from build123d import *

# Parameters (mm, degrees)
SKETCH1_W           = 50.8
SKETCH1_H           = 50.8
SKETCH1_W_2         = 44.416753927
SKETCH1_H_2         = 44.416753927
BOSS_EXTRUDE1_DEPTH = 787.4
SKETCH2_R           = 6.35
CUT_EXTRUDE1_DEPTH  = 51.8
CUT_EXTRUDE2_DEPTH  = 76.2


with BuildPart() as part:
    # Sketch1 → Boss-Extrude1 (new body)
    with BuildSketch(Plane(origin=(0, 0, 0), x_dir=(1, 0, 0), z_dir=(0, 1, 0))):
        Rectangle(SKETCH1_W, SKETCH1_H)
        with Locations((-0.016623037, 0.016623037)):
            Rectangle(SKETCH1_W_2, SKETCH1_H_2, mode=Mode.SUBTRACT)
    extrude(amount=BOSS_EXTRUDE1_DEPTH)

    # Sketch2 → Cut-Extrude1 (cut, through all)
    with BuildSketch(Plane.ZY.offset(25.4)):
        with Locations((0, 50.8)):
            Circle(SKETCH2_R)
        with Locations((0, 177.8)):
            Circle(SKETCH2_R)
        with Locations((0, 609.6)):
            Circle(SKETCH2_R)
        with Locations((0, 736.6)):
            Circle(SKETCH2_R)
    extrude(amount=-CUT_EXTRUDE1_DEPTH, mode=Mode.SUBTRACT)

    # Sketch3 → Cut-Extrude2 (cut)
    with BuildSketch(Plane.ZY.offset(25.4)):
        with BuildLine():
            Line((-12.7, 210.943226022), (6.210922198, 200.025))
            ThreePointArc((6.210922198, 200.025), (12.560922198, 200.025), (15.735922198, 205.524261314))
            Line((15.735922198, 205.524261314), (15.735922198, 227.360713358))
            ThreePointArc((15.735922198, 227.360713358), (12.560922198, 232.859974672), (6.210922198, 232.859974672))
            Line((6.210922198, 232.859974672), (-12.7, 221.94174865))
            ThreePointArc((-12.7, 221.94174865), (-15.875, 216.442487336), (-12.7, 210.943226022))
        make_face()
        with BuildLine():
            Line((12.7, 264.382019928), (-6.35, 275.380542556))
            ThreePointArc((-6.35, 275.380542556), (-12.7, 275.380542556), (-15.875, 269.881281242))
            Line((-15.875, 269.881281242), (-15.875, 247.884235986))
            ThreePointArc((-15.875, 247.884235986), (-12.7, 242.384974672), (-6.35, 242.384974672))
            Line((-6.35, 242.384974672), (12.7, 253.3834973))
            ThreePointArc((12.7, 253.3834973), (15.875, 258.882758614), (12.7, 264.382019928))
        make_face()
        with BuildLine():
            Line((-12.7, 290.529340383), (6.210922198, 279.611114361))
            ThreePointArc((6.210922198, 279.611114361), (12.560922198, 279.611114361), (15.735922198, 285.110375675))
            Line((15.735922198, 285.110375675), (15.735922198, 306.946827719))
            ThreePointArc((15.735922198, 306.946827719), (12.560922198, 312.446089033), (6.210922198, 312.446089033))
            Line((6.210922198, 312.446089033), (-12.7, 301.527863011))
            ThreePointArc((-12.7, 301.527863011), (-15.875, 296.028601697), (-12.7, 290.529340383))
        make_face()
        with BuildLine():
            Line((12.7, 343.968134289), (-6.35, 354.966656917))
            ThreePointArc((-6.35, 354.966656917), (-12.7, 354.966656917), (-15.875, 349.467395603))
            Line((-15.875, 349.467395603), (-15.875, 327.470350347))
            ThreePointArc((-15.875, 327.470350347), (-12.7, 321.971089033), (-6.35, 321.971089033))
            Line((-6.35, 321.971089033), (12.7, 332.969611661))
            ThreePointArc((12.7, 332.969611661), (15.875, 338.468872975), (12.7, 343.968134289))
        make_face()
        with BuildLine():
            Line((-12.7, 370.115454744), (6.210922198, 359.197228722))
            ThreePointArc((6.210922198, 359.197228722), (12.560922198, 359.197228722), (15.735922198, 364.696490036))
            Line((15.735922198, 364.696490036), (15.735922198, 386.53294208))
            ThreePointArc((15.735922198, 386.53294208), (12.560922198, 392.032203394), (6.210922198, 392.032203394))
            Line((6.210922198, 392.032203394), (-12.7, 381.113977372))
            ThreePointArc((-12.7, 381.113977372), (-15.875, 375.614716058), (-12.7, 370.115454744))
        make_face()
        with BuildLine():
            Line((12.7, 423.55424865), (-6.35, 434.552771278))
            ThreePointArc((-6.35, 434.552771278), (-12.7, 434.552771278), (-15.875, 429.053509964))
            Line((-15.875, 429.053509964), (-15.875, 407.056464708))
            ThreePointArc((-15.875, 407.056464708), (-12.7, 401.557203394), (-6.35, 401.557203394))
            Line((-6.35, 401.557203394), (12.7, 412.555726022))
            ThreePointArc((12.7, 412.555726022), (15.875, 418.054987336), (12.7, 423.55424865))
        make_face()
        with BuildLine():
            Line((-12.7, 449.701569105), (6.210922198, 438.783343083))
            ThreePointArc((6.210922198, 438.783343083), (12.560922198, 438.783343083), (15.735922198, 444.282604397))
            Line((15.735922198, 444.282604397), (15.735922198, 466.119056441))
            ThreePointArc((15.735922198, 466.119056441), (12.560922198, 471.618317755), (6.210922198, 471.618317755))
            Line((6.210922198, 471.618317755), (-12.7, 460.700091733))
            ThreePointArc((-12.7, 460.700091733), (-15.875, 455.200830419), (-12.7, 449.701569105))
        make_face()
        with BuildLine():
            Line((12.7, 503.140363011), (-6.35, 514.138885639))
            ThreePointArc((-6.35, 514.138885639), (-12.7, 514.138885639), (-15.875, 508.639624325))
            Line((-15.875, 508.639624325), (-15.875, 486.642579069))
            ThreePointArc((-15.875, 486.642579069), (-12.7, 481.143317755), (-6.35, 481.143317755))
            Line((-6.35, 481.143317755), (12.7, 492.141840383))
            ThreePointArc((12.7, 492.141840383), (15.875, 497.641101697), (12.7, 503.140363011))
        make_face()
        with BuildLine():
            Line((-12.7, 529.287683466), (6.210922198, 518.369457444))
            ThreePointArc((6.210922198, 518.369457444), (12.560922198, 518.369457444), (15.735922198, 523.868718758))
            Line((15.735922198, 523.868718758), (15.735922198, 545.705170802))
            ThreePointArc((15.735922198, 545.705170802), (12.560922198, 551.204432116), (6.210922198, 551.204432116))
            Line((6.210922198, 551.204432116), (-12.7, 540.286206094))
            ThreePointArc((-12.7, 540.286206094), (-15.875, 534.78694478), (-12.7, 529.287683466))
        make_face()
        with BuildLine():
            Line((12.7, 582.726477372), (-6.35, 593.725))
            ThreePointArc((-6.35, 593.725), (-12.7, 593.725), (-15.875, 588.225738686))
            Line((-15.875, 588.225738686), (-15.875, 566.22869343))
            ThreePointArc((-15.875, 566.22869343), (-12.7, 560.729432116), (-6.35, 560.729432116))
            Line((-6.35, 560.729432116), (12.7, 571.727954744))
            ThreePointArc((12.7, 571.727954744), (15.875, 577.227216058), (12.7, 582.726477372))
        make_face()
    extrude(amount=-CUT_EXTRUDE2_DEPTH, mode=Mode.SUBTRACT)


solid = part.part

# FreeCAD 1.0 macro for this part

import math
import FreeCAD as App
import Part
import Sketcher

V = App.Vector
Q = App.Units.Quantity

doc = App.newDocument("Part")
body = doc.addObject("PartDesign::Body", "Body")

sketch1 = body.newObject("Sketcher::SketchObject", "Sketch")
sketch1.AttachmentSupport = (doc.getObject("XZ_Plane"), [""])
sketch1.MapMode = "FlatFace"
sketch1.addGeometry(Part.LineSegment(V(-25, -25, 0), V(-25, 25, 0)), False)
sketch1.addGeometry(Part.LineSegment(V(-25, 25, 0), V(25, 25, 0)), False)
sketch1.addGeometry(Part.LineSegment(V(25, 25, 0), V(25, -25, 0)), False)
sketch1.addGeometry(Part.LineSegment(V(25, -25, 0), V(-25, -25, 0)), False)
sketch1.addGeometry(Part.LineSegment(V(22, 22, 0), V(-22, 22, 0)), False)
sketch1.addGeometry(Part.LineSegment(V(-22, 22, 0), V(-22, -22, 0)), False)
sketch1.addGeometry(Part.LineSegment(V(-22, -22, 0), V(22, -22, 0)), False)
sketch1.addGeometry(Part.LineSegment(V(22, -22, 0), V(22, 22, 0)), False)
sketch1.addConstraint(Sketcher.Constraint("Coincident", 0, 2, 1, 1))
sketch1.addConstraint(Sketcher.Constraint("Coincident", 1, 2, 2, 1))
sketch1.addConstraint(Sketcher.Constraint("Coincident", 2, 2, 3, 1))
sketch1.addConstraint(Sketcher.Constraint("Coincident", 3, 2, 0, 1))
sketch1.addConstraint(Sketcher.Constraint("Coincident", 4, 2, 5, 1))
sketch1.addConstraint(Sketcher.Constraint("Coincident", 5, 2, 6, 1))
sketch1.addConstraint(Sketcher.Constraint("Coincident", 6, 2, 7, 1))
sketch1.addConstraint(Sketcher.Constraint("Coincident", 7, 2, 4, 1))
sketch1.addConstraint(Sketcher.Constraint("Vertical", 0))
sketch1.addConstraint(Sketcher.Constraint("Horizontal", 1))
sketch1.addConstraint(Sketcher.Constraint("Vertical", 2))
sketch1.addConstraint(Sketcher.Constraint("Horizontal", 3))
sketch1.addConstraint(Sketcher.Constraint("Horizontal", 4))
sketch1.addConstraint(Sketcher.Constraint("Vertical", 5))
sketch1.addConstraint(Sketcher.Constraint("Horizontal", 6))
sketch1.addConstraint(Sketcher.Constraint("Vertical", 7))
sketch1.addConstraint(Sketcher.Constraint("Symmetric", 0, 2, 2, 2, -1, 1))
sketch1.addConstraint(Sketcher.Constraint("Equal", 3, 0))
sketch1.addConstraint(Sketcher.Constraint("Equal", 6, 5))
sketch1.addConstraint(Sketcher.Constraint("DistanceX", 1, 1, 1, 2, Q("2 in")))
sketch1.addConstraint(Sketcher.Constraint("DistanceX", 4, 2, -1, 1, Q("0.875 in")))
sketch1.addConstraint(Sketcher.Constraint("DistanceY", 5, 2, -1, 1, Q("0.875 in")))
sketch1.addConstraint(Sketcher.Constraint("DistanceX", 4, 2, 4, 1, 44.416754))
pad1 = body.newObject("PartDesign::Pad", "Pad")
pad1.Profile = sketch1
pad1.Length = Q("31 in")
pad1.Reversed = True

sketch2 = body.newObject("Sketcher::SketchObject", "Sketch001")
sketch2.AttachmentSupport = (doc.getObject("YZ_Plane"), [""])
sketch2.MapMode = "FlatFace"
sketch2.AttachmentOffset = App.Placement(V(0, 0, -1 * 25.4), App.Rotation())
sketch2.addGeometry(Part.Circle(V(51, 0, 0), V(0, 0, 1), 6), False)
sketch2.addGeometry(Part.Circle(V(178, 0, 0), V(0, 0, 1), 6), False)
sketch2.addGeometry(Part.Circle(V(610, 0, 0), V(0, 0, 1), 6), False)
sketch2.addGeometry(Part.Circle(V(737, 0, 0), V(0, 0, 1), 6), False)
sketch2.addConstraint(Sketcher.Constraint("Equal", 0, 1))
sketch2.addConstraint(Sketcher.Constraint("Equal", 1, 2))
sketch2.addConstraint(Sketcher.Constraint("Equal", 2, 3))
sketch2.addConstraint(Sketcher.Constraint("PointOnObject", 0, 3, -1))
sketch2.addConstraint(Sketcher.Constraint("PointOnObject", 1, 3, -1))
sketch2.addConstraint(Sketcher.Constraint("PointOnObject", 2, 3, -1))
sketch2.addConstraint(Sketcher.Constraint("PointOnObject", 3, 3, -1))
sketch2.addConstraint(Sketcher.Constraint("Diameter", 0, Q("0.5 in")))
sketch2.addConstraint(Sketcher.Constraint("DistanceX", -1, 1, 0, 3, Q("2 in")))
sketch2.addConstraint(Sketcher.Constraint("DistanceX", -1, 1, 1, 3, Q("7 in")))
sketch2.addConstraint(Sketcher.Constraint("DistanceX", -1, 1, 2, 3, Q("24 in")))
sketch2.addConstraint(Sketcher.Constraint("DistanceX", -1, 1, 3, 3, Q("29 in")))
pocket1 = body.newObject("PartDesign::Pocket", "Pocket")
pocket1.Profile = sketch2
pocket1.Type = "ThroughAll"
pocket1.Reversed = True

sketch3 = body.newObject("Sketcher::SketchObject", "Sketch002")
sketch3.AttachmentSupport = (doc.getObject("YZ_Plane"), [""])
sketch3.MapMode = "FlatFace"
sketch3.AttachmentOffset = App.Placement(V(0, 0, -1 * 25.4), App.Rotation())
sketch3.addGeometry(Part.LineSegment(V(211, -13, 0), V(200, 6, 0)), False)
sketch3.addGeometry(Part.ArcOfCircle(Part.Circle(V(206, 9, 0), V(0, 0, 1), 6), math.radians(90), math.radians(210)), False)
sketch3.addGeometry(Part.LineSegment(V(206, 16, 0), V(227, 16, 0)), False)
sketch3.addGeometry(Part.ArcOfCircle(Part.Circle(V(227, 9, 0), V(0, 0, 1), 6), math.radians(-30), math.radians(90)), False)
sketch3.addGeometry(Part.LineSegment(V(233, 6, 0), V(222, -13, 0)), False)
sketch3.addGeometry(Part.ArcOfCircle(Part.Circle(V(216, -10, 0), V(0, 0, 1), 6), math.radians(-150), math.radians(-30)), False)
sketch3.addGeometry(Part.LineSegment(V(264, 13, 0), V(275, -6, 0)), False)
sketch3.addGeometry(Part.ArcOfCircle(Part.Circle(V(270, -10, 0), V(0, 0, 1), 6), math.radians(-90), math.radians(30)), False)
sketch3.addGeometry(Part.LineSegment(V(270, -16, 0), V(248, -16, 0)), False)
sketch3.addGeometry(Part.ArcOfCircle(Part.Circle(V(248, -10, 0), V(0, 0, 1), 6), math.radians(150), math.radians(270)), False)
sketch3.addGeometry(Part.LineSegment(V(242, -6, 0), V(253, 13, 0)), False)
sketch3.addGeometry(Part.ArcOfCircle(Part.Circle(V(259, 10, 0), V(0, 0, 1), 6), math.radians(30), math.radians(150)), False)
sketch3.addGeometry(Part.LineSegment(V(291, -13, 0), V(280, 6, 0)), False)
sketch3.addGeometry(Part.ArcOfCircle(Part.Circle(V(285, 9, 0), V(0, 0, 1), 6), math.radians(90), math.radians(210)), False)
sketch3.addGeometry(Part.LineSegment(V(285, 16, 0), V(307, 16, 0)), False)
sketch3.addGeometry(Part.ArcOfCircle(Part.Circle(V(307, 9, 0), V(0, 0, 1), 6), math.radians(-30), math.radians(90)), False)
sketch3.addGeometry(Part.LineSegment(V(312, 6, 0), V(302, -13, 0)), False)
sketch3.addGeometry(Part.ArcOfCircle(Part.Circle(V(296, -10, 0), V(0, 0, 1), 6), math.radians(-150), math.radians(-30)), False)
sketch3.addGeometry(Part.LineSegment(V(344, 13, 0), V(355, -6, 0)), False)
sketch3.addGeometry(Part.ArcOfCircle(Part.Circle(V(349, -10, 0), V(0, 0, 1), 6), math.radians(-90), math.radians(30)), False)
sketch3.addGeometry(Part.LineSegment(V(349, -16, 0), V(327, -16, 0)), False)
sketch3.addGeometry(Part.ArcOfCircle(Part.Circle(V(327, -10, 0), V(0, 0, 1), 6), math.radians(150), math.radians(270)), False)
sketch3.addGeometry(Part.LineSegment(V(322, -6, 0), V(333, 13, 0)), False)
sketch3.addGeometry(Part.ArcOfCircle(Part.Circle(V(338, 10, 0), V(0, 0, 1), 6), math.radians(30), math.radians(150)), False)
sketch3.addGeometry(Part.LineSegment(V(370, -13, 0), V(359, 6, 0)), False)
sketch3.addGeometry(Part.ArcOfCircle(Part.Circle(V(365, 9, 0), V(0, 0, 1), 6), math.radians(90), math.radians(210)), False)
sketch3.addGeometry(Part.LineSegment(V(365, 16, 0), V(387, 16, 0)), False)
sketch3.addGeometry(Part.ArcOfCircle(Part.Circle(V(387, 9, 0), V(0, 0, 1), 6), math.radians(-30), math.radians(90)), False)
sketch3.addGeometry(Part.LineSegment(V(392, 6, 0), V(381, -13, 0)), False)
sketch3.addGeometry(Part.ArcOfCircle(Part.Circle(V(376, -10, 0), V(0, 0, 1), 6), math.radians(-150), math.radians(-30)), False)
sketch3.addGeometry(Part.LineSegment(V(424, 13, 0), V(435, -6, 0)), False)
sketch3.addGeometry(Part.ArcOfCircle(Part.Circle(V(429, -10, 0), V(0, 0, 1), 6), math.radians(-90), math.radians(30)), False)
sketch3.addGeometry(Part.LineSegment(V(429, -16, 0), V(407, -16, 0)), False)
sketch3.addGeometry(Part.ArcOfCircle(Part.Circle(V(407, -10, 0), V(0, 0, 1), 6), math.radians(150), math.radians(270)), False)
sketch3.addGeometry(Part.LineSegment(V(402, -6, 0), V(413, 13, 0)), False)
sketch3.addGeometry(Part.ArcOfCircle(Part.Circle(V(418, 10, 0), V(0, 0, 1), 6), math.radians(30), math.radians(150)), False)
sketch3.addGeometry(Part.LineSegment(V(450, -13, 0), V(439, 6, 0)), False)
sketch3.addGeometry(Part.ArcOfCircle(Part.Circle(V(444, 9, 0), V(0, 0, 1), 6), math.radians(90), math.radians(210)), False)
sketch3.addGeometry(Part.LineSegment(V(444, 16, 0), V(466, 16, 0)), False)
sketch3.addGeometry(Part.ArcOfCircle(Part.Circle(V(466, 9, 0), V(0, 0, 1), 6), math.radians(-30), math.radians(90)), False)
sketch3.addGeometry(Part.LineSegment(V(472, 6, 0), V(461, -13, 0)), False)
sketch3.addGeometry(Part.ArcOfCircle(Part.Circle(V(455, -10, 0), V(0, 0, 1), 6), math.radians(-150), math.radians(-30)), False)
sketch3.addGeometry(Part.LineSegment(V(503, 13, 0), V(514, -6, 0)), False)
sketch3.addGeometry(Part.ArcOfCircle(Part.Circle(V(509, -10, 0), V(0, 0, 1), 6), math.radians(-90), math.radians(30)), False)
sketch3.addGeometry(Part.LineSegment(V(509, -16, 0), V(487, -16, 0)), False)
sketch3.addGeometry(Part.ArcOfCircle(Part.Circle(V(487, -10, 0), V(0, 0, 1), 6), math.radians(150), math.radians(270)), False)
sketch3.addGeometry(Part.LineSegment(V(481, -6, 0), V(492, 13, 0)), False)
sketch3.addGeometry(Part.ArcOfCircle(Part.Circle(V(498, 10, 0), V(0, 0, 1), 6), math.radians(30), math.radians(150)), False)
sketch3.addGeometry(Part.LineSegment(V(529, -13, 0), V(518, 6, 0)), False)
sketch3.addGeometry(Part.ArcOfCircle(Part.Circle(V(524, 9, 0), V(0, 0, 1), 6), math.radians(90), math.radians(210)), False)
sketch3.addGeometry(Part.LineSegment(V(524, 16, 0), V(546, 16, 0)), False)
sketch3.addGeometry(Part.ArcOfCircle(Part.Circle(V(546, 9, 0), V(0, 0, 1), 6), math.radians(-30), math.radians(90)), False)
sketch3.addGeometry(Part.LineSegment(V(551, 6, 0), V(540, -13, 0)), False)
sketch3.addGeometry(Part.ArcOfCircle(Part.Circle(V(535, -10, 0), V(0, 0, 1), 6), math.radians(-150), math.radians(-30)), False)
sketch3.addGeometry(Part.LineSegment(V(583, 13, 0), V(594, -6, 0)), False)
sketch3.addGeometry(Part.ArcOfCircle(Part.Circle(V(588, -10, 0), V(0, 0, 1), 6), math.radians(-90), math.radians(30)), False)
sketch3.addGeometry(Part.LineSegment(V(588, -16, 0), V(566, -16, 0)), False)
sketch3.addGeometry(Part.ArcOfCircle(Part.Circle(V(566, -10, 0), V(0, 0, 1), 6), math.radians(150), math.radians(270)), False)
sketch3.addGeometry(Part.LineSegment(V(561, -6, 0), V(572, 13, 0)), False)
sketch3.addGeometry(Part.ArcOfCircle(Part.Circle(V(577, 10, 0), V(0, 0, 1), 6), math.radians(30), math.radians(150)), False)
sketch3.addConstraint(Sketcher.Constraint("Tangent", 0, 2, 1, 2))
sketch3.addConstraint(Sketcher.Constraint("Tangent", 1, 1, 2, 1))
sketch3.addConstraint(Sketcher.Constraint("Tangent", 2, 2, 3, 2))
sketch3.addConstraint(Sketcher.Constraint("Tangent", 3, 1, 4, 1))
sketch3.addConstraint(Sketcher.Constraint("Tangent", 4, 2, 5, 2))
sketch3.addConstraint(Sketcher.Constraint("Tangent", 5, 1, 0, 1))
sketch3.addConstraint(Sketcher.Constraint("Tangent", 6, 2, 7, 2))
sketch3.addConstraint(Sketcher.Constraint("Tangent", 7, 1, 8, 1))
sketch3.addConstraint(Sketcher.Constraint("Tangent", 8, 2, 9, 2))
sketch3.addConstraint(Sketcher.Constraint("Tangent", 9, 1, 10, 1))
sketch3.addConstraint(Sketcher.Constraint("Tangent", 10, 2, 11, 2))
sketch3.addConstraint(Sketcher.Constraint("Tangent", 11, 1, 6, 1))
sketch3.addConstraint(Sketcher.Constraint("Tangent", 12, 2, 13, 2))
sketch3.addConstraint(Sketcher.Constraint("Tangent", 13, 1, 14, 1))
sketch3.addConstraint(Sketcher.Constraint("Tangent", 14, 2, 15, 2))
sketch3.addConstraint(Sketcher.Constraint("Tangent", 15, 1, 16, 1))
sketch3.addConstraint(Sketcher.Constraint("Tangent", 16, 2, 17, 2))
sketch3.addConstraint(Sketcher.Constraint("Tangent", 17, 1, 12, 1))
sketch3.addConstraint(Sketcher.Constraint("Tangent", 18, 2, 19, 2))
sketch3.addConstraint(Sketcher.Constraint("Tangent", 19, 1, 20, 1))
sketch3.addConstraint(Sketcher.Constraint("Tangent", 20, 2, 21, 2))
sketch3.addConstraint(Sketcher.Constraint("Tangent", 21, 1, 22, 1))
sketch3.addConstraint(Sketcher.Constraint("Tangent", 22, 2, 23, 2))
sketch3.addConstraint(Sketcher.Constraint("Tangent", 23, 1, 18, 1))
sketch3.addConstraint(Sketcher.Constraint("Tangent", 24, 2, 25, 2))
sketch3.addConstraint(Sketcher.Constraint("Tangent", 25, 1, 26, 1))
sketch3.addConstraint(Sketcher.Constraint("Tangent", 26, 2, 27, 2))
sketch3.addConstraint(Sketcher.Constraint("Tangent", 27, 1, 28, 1))
sketch3.addConstraint(Sketcher.Constraint("Tangent", 28, 2, 29, 2))
sketch3.addConstraint(Sketcher.Constraint("Tangent", 29, 1, 24, 1))
sketch3.addConstraint(Sketcher.Constraint("Tangent", 30, 2, 31, 2))
sketch3.addConstraint(Sketcher.Constraint("Tangent", 31, 1, 32, 1))
sketch3.addConstraint(Sketcher.Constraint("Tangent", 32, 2, 33, 2))
sketch3.addConstraint(Sketcher.Constraint("Tangent", 33, 1, 34, 1))
sketch3.addConstraint(Sketcher.Constraint("Tangent", 34, 2, 35, 2))
sketch3.addConstraint(Sketcher.Constraint("Tangent", 35, 1, 30, 1))
sketch3.addConstraint(Sketcher.Constraint("Tangent", 36, 2, 37, 2))
sketch3.addConstraint(Sketcher.Constraint("Tangent", 37, 1, 38, 1))
sketch3.addConstraint(Sketcher.Constraint("Tangent", 38, 2, 39, 2))
sketch3.addConstraint(Sketcher.Constraint("Tangent", 39, 1, 40, 1))
sketch3.addConstraint(Sketcher.Constraint("Tangent", 40, 2, 41, 2))
sketch3.addConstraint(Sketcher.Constraint("Tangent", 41, 1, 36, 1))
sketch3.addConstraint(Sketcher.Constraint("Tangent", 42, 2, 43, 2))
sketch3.addConstraint(Sketcher.Constraint("Tangent", 43, 1, 44, 1))
sketch3.addConstraint(Sketcher.Constraint("Tangent", 44, 2, 45, 2))
sketch3.addConstraint(Sketcher.Constraint("Tangent", 45, 1, 46, 1))
sketch3.addConstraint(Sketcher.Constraint("Tangent", 46, 2, 47, 2))
sketch3.addConstraint(Sketcher.Constraint("Tangent", 47, 1, 42, 1))
sketch3.addConstraint(Sketcher.Constraint("Tangent", 48, 2, 49, 2))
sketch3.addConstraint(Sketcher.Constraint("Tangent", 49, 1, 50, 1))
sketch3.addConstraint(Sketcher.Constraint("Tangent", 50, 2, 51, 2))
sketch3.addConstraint(Sketcher.Constraint("Tangent", 51, 1, 52, 1))
sketch3.addConstraint(Sketcher.Constraint("Tangent", 52, 2, 53, 2))
sketch3.addConstraint(Sketcher.Constraint("Tangent", 53, 1, 48, 1))
sketch3.addConstraint(Sketcher.Constraint("Tangent", 54, 2, 55, 2))
sketch3.addConstraint(Sketcher.Constraint("Tangent", 55, 1, 56, 1))
sketch3.addConstraint(Sketcher.Constraint("Tangent", 56, 2, 57, 2))
sketch3.addConstraint(Sketcher.Constraint("Tangent", 57, 1, 58, 1))
sketch3.addConstraint(Sketcher.Constraint("Tangent", 58, 2, 59, 2))
sketch3.addConstraint(Sketcher.Constraint("Tangent", 59, 1, 54, 1))
sketch3.addConstraint(Sketcher.Constraint("Horizontal", 2))
sketch3.addConstraint(Sketcher.Constraint("Horizontal", 8))
sketch3.addConstraint(Sketcher.Constraint("Horizontal", 14))
sketch3.addConstraint(Sketcher.Constraint("Horizontal", 20))
sketch3.addConstraint(Sketcher.Constraint("Horizontal", 26))
sketch3.addConstraint(Sketcher.Constraint("Horizontal", 32))
sketch3.addConstraint(Sketcher.Constraint("Horizontal", 38))
sketch3.addConstraint(Sketcher.Constraint("Horizontal", 44))
sketch3.addConstraint(Sketcher.Constraint("Horizontal", 50))
sketch3.addConstraint(Sketcher.Constraint("Horizontal", 56))
sketch3.addConstraint(Sketcher.Constraint("Equal", 1, 3))
sketch3.addConstraint(Sketcher.Constraint("Equal", 3, 5))
sketch3.addConstraint(Sketcher.Constraint("Equal", 5, 7))
sketch3.addConstraint(Sketcher.Constraint("Equal", 7, 9))
sketch3.addConstraint(Sketcher.Constraint("Equal", 9, 11))
sketch3.addConstraint(Sketcher.Constraint("Equal", 11, 13))
sketch3.addConstraint(Sketcher.Constraint("Equal", 13, 15))
sketch3.addConstraint(Sketcher.Constraint("Equal", 15, 17))
sketch3.addConstraint(Sketcher.Constraint("Equal", 17, 19))
sketch3.addConstraint(Sketcher.Constraint("Equal", 19, 21))
sketch3.addConstraint(Sketcher.Constraint("Equal", 21, 23))
sketch3.addConstraint(Sketcher.Constraint("Equal", 23, 25))
sketch3.addConstraint(Sketcher.Constraint("Equal", 25, 27))
sketch3.addConstraint(Sketcher.Constraint("Equal", 27, 29))
sketch3.addConstraint(Sketcher.Constraint("Equal", 29, 31))
sketch3.addConstraint(Sketcher.Constraint("Equal", 31, 33))
sketch3.addConstraint(Sketcher.Constraint("Equal", 33, 35))
sketch3.addConstraint(Sketcher.Constraint("Equal", 35, 37))
sketch3.addConstraint(Sketcher.Constraint("Equal", 37, 39))
sketch3.addConstraint(Sketcher.Constraint("Equal", 39, 41))
sketch3.addConstraint(Sketcher.Constraint("Equal", 41, 43))
sketch3.addConstraint(Sketcher.Constraint("Equal", 43, 45))
sketch3.addConstraint(Sketcher.Constraint("Equal", 45, 47))
sketch3.addConstraint(Sketcher.Constraint("Equal", 47, 49))
sketch3.addConstraint(Sketcher.Constraint("Equal", 49, 51))
sketch3.addConstraint(Sketcher.Constraint("Equal", 51, 53))
sketch3.addConstraint(Sketcher.Constraint("Equal", 53, 55))
sketch3.addConstraint(Sketcher.Constraint("Equal", 55, 57))
sketch3.addConstraint(Sketcher.Constraint("Equal", 57, 59))
sketch3.addConstraint(Sketcher.Constraint("Parallel", 0, 6))
sketch3.addConstraint(Sketcher.Constraint("Parallel", 4, 10))
sketch3.addConstraint(Sketcher.Constraint("Parallel", 6, 12))
sketch3.addConstraint(Sketcher.Constraint("Parallel", 10, 16))
sketch3.addConstraint(Sketcher.Constraint("Parallel", 12, 18))
sketch3.addConstraint(Sketcher.Constraint("Parallel", 16, 22))
sketch3.addConstraint(Sketcher.Constraint("Parallel", 18, 24))
sketch3.addConstraint(Sketcher.Constraint("Parallel", 22, 28))
sketch3.addConstraint(Sketcher.Constraint("Parallel", 24, 30))
sketch3.addConstraint(Sketcher.Constraint("Parallel", 28, 34))
sketch3.addConstraint(Sketcher.Constraint("Parallel", 30, 36))
sketch3.addConstraint(Sketcher.Constraint("Parallel", 34, 40))
sketch3.addConstraint(Sketcher.Constraint("Parallel", 36, 42))
sketch3.addConstraint(Sketcher.Constraint("Parallel", 40, 46))
sketch3.addConstraint(Sketcher.Constraint("Parallel", 42, 48))
sketch3.addConstraint(Sketcher.Constraint("Parallel", 46, 52))
sketch3.addConstraint(Sketcher.Constraint("Parallel", 48, 54))
sketch3.addConstraint(Sketcher.Constraint("Parallel", 52, 58))
sketch3.addConstraint(Sketcher.Constraint("Horizontal", 5, 3, 7, 3))
sketch3.addConstraint(Sketcher.Constraint("Horizontal", 3, 3, 13, 3))
sketch3.addConstraint(Sketcher.Constraint("Horizontal", 9, 3, 17, 3))
sketch3.addConstraint(Sketcher.Constraint("Horizontal", 17, 3, 19, 3))
sketch3.addConstraint(Sketcher.Constraint("Horizontal", 11, 3, 23, 3))
sketch3.addConstraint(Sketcher.Constraint("Horizontal", 15, 3, 25, 3))
sketch3.addConstraint(Sketcher.Constraint("Horizontal", 21, 3, 29, 3))
sketch3.addConstraint(Sketcher.Constraint("Horizontal", 29, 3, 31, 3))
sketch3.addConstraint(Sketcher.Constraint("Horizontal", 23, 3, 35, 3))
sketch3.addConstraint(Sketcher.Constraint("Horizontal", 27, 3, 37, 3))
sketch3.addConstraint(Sketcher.Constraint("Horizontal", 33, 3, 41, 3))
sketch3.addConstraint(Sketcher.Constraint("Horizontal", 41, 3, 43, 3))
sketch3.addConstraint(Sketcher.Constraint("Horizontal", 35, 3, 47, 3))
sketch3.addConstraint(Sketcher.Constraint("Horizontal", 39, 3, 49, 3))
sketch3.addConstraint(Sketcher.Constraint("Horizontal", 45, 3, 53, 3))
sketch3.addConstraint(Sketcher.Constraint("Horizontal", 53, 3, 55, 3))
sketch3.addConstraint(Sketcher.Constraint("Horizontal", 47, 3, 59, 3))
sketch3.addConstraint(Sketcher.Constraint("Horizontal", 0, 2, 3, 1))
sketch3.addConstraint(Sketcher.Constraint("Radius", 1, Q("0.25 in")))
sketch3.addConstraint(Sketcher.Constraint("Angle", 0, Q("120 deg")))
sketch3.addConstraint(Sketcher.Constraint("DistanceY", 4, 2, -1, 1, Q("0.5 in")))
sketch3.addConstraint(Sketcher.Constraint("DistanceY", -1, 1, 10, 2, Q("0.5 in")))
sketch3.addConstraint(Sketcher.Constraint("DistanceX", -1, 1, 0, 2, Q("7.875 in")))
sketch3.addConstraint(Sketcher.Constraint("DistanceX", -1, 1, 54, 2, Q("23.375 in")))
sketch3.addConstraint(Sketcher.Constraint("DistanceX", -1, 1, 17, 3, 296.028602))
sketch3.addConstraint(Sketcher.Constraint("DistanceX", -1, 1, 47, 3, 497.641102))
sketch3.addConstraint(Sketcher.Constraint("DistanceX", 2, 1, 2, 2, 21.836452))
sketch3.addConstraint(Sketcher.Constraint("DistanceX", -1, 1, 7, 3, 269.881281))
sketch3.addConstraint(Sketcher.Constraint("DistanceX", -1, 1, 21, 3, 327.47035))
sketch3.addConstraint(Sketcher.Constraint("DistanceX", -1, 1, 25, 3, 364.69649))
sketch3.addConstraint(Sketcher.Constraint("DistanceX", -1, 1, 31, 3, 429.05351))
sketch3.addConstraint(Sketcher.Constraint("DistanceX", -1, 1, 41, 3, 455.20083))
sketch3.addConstraint(Sketcher.Constraint("DistanceX", -1, 1, 49, 3, 523.868719))
pocket2 = body.newObject("PartDesign::Pocket", "Pocket001")
pocket2.Profile = sketch3
pocket2.Length = Q("3 in")
pocket2.Reversed = True

doc.recompute()
